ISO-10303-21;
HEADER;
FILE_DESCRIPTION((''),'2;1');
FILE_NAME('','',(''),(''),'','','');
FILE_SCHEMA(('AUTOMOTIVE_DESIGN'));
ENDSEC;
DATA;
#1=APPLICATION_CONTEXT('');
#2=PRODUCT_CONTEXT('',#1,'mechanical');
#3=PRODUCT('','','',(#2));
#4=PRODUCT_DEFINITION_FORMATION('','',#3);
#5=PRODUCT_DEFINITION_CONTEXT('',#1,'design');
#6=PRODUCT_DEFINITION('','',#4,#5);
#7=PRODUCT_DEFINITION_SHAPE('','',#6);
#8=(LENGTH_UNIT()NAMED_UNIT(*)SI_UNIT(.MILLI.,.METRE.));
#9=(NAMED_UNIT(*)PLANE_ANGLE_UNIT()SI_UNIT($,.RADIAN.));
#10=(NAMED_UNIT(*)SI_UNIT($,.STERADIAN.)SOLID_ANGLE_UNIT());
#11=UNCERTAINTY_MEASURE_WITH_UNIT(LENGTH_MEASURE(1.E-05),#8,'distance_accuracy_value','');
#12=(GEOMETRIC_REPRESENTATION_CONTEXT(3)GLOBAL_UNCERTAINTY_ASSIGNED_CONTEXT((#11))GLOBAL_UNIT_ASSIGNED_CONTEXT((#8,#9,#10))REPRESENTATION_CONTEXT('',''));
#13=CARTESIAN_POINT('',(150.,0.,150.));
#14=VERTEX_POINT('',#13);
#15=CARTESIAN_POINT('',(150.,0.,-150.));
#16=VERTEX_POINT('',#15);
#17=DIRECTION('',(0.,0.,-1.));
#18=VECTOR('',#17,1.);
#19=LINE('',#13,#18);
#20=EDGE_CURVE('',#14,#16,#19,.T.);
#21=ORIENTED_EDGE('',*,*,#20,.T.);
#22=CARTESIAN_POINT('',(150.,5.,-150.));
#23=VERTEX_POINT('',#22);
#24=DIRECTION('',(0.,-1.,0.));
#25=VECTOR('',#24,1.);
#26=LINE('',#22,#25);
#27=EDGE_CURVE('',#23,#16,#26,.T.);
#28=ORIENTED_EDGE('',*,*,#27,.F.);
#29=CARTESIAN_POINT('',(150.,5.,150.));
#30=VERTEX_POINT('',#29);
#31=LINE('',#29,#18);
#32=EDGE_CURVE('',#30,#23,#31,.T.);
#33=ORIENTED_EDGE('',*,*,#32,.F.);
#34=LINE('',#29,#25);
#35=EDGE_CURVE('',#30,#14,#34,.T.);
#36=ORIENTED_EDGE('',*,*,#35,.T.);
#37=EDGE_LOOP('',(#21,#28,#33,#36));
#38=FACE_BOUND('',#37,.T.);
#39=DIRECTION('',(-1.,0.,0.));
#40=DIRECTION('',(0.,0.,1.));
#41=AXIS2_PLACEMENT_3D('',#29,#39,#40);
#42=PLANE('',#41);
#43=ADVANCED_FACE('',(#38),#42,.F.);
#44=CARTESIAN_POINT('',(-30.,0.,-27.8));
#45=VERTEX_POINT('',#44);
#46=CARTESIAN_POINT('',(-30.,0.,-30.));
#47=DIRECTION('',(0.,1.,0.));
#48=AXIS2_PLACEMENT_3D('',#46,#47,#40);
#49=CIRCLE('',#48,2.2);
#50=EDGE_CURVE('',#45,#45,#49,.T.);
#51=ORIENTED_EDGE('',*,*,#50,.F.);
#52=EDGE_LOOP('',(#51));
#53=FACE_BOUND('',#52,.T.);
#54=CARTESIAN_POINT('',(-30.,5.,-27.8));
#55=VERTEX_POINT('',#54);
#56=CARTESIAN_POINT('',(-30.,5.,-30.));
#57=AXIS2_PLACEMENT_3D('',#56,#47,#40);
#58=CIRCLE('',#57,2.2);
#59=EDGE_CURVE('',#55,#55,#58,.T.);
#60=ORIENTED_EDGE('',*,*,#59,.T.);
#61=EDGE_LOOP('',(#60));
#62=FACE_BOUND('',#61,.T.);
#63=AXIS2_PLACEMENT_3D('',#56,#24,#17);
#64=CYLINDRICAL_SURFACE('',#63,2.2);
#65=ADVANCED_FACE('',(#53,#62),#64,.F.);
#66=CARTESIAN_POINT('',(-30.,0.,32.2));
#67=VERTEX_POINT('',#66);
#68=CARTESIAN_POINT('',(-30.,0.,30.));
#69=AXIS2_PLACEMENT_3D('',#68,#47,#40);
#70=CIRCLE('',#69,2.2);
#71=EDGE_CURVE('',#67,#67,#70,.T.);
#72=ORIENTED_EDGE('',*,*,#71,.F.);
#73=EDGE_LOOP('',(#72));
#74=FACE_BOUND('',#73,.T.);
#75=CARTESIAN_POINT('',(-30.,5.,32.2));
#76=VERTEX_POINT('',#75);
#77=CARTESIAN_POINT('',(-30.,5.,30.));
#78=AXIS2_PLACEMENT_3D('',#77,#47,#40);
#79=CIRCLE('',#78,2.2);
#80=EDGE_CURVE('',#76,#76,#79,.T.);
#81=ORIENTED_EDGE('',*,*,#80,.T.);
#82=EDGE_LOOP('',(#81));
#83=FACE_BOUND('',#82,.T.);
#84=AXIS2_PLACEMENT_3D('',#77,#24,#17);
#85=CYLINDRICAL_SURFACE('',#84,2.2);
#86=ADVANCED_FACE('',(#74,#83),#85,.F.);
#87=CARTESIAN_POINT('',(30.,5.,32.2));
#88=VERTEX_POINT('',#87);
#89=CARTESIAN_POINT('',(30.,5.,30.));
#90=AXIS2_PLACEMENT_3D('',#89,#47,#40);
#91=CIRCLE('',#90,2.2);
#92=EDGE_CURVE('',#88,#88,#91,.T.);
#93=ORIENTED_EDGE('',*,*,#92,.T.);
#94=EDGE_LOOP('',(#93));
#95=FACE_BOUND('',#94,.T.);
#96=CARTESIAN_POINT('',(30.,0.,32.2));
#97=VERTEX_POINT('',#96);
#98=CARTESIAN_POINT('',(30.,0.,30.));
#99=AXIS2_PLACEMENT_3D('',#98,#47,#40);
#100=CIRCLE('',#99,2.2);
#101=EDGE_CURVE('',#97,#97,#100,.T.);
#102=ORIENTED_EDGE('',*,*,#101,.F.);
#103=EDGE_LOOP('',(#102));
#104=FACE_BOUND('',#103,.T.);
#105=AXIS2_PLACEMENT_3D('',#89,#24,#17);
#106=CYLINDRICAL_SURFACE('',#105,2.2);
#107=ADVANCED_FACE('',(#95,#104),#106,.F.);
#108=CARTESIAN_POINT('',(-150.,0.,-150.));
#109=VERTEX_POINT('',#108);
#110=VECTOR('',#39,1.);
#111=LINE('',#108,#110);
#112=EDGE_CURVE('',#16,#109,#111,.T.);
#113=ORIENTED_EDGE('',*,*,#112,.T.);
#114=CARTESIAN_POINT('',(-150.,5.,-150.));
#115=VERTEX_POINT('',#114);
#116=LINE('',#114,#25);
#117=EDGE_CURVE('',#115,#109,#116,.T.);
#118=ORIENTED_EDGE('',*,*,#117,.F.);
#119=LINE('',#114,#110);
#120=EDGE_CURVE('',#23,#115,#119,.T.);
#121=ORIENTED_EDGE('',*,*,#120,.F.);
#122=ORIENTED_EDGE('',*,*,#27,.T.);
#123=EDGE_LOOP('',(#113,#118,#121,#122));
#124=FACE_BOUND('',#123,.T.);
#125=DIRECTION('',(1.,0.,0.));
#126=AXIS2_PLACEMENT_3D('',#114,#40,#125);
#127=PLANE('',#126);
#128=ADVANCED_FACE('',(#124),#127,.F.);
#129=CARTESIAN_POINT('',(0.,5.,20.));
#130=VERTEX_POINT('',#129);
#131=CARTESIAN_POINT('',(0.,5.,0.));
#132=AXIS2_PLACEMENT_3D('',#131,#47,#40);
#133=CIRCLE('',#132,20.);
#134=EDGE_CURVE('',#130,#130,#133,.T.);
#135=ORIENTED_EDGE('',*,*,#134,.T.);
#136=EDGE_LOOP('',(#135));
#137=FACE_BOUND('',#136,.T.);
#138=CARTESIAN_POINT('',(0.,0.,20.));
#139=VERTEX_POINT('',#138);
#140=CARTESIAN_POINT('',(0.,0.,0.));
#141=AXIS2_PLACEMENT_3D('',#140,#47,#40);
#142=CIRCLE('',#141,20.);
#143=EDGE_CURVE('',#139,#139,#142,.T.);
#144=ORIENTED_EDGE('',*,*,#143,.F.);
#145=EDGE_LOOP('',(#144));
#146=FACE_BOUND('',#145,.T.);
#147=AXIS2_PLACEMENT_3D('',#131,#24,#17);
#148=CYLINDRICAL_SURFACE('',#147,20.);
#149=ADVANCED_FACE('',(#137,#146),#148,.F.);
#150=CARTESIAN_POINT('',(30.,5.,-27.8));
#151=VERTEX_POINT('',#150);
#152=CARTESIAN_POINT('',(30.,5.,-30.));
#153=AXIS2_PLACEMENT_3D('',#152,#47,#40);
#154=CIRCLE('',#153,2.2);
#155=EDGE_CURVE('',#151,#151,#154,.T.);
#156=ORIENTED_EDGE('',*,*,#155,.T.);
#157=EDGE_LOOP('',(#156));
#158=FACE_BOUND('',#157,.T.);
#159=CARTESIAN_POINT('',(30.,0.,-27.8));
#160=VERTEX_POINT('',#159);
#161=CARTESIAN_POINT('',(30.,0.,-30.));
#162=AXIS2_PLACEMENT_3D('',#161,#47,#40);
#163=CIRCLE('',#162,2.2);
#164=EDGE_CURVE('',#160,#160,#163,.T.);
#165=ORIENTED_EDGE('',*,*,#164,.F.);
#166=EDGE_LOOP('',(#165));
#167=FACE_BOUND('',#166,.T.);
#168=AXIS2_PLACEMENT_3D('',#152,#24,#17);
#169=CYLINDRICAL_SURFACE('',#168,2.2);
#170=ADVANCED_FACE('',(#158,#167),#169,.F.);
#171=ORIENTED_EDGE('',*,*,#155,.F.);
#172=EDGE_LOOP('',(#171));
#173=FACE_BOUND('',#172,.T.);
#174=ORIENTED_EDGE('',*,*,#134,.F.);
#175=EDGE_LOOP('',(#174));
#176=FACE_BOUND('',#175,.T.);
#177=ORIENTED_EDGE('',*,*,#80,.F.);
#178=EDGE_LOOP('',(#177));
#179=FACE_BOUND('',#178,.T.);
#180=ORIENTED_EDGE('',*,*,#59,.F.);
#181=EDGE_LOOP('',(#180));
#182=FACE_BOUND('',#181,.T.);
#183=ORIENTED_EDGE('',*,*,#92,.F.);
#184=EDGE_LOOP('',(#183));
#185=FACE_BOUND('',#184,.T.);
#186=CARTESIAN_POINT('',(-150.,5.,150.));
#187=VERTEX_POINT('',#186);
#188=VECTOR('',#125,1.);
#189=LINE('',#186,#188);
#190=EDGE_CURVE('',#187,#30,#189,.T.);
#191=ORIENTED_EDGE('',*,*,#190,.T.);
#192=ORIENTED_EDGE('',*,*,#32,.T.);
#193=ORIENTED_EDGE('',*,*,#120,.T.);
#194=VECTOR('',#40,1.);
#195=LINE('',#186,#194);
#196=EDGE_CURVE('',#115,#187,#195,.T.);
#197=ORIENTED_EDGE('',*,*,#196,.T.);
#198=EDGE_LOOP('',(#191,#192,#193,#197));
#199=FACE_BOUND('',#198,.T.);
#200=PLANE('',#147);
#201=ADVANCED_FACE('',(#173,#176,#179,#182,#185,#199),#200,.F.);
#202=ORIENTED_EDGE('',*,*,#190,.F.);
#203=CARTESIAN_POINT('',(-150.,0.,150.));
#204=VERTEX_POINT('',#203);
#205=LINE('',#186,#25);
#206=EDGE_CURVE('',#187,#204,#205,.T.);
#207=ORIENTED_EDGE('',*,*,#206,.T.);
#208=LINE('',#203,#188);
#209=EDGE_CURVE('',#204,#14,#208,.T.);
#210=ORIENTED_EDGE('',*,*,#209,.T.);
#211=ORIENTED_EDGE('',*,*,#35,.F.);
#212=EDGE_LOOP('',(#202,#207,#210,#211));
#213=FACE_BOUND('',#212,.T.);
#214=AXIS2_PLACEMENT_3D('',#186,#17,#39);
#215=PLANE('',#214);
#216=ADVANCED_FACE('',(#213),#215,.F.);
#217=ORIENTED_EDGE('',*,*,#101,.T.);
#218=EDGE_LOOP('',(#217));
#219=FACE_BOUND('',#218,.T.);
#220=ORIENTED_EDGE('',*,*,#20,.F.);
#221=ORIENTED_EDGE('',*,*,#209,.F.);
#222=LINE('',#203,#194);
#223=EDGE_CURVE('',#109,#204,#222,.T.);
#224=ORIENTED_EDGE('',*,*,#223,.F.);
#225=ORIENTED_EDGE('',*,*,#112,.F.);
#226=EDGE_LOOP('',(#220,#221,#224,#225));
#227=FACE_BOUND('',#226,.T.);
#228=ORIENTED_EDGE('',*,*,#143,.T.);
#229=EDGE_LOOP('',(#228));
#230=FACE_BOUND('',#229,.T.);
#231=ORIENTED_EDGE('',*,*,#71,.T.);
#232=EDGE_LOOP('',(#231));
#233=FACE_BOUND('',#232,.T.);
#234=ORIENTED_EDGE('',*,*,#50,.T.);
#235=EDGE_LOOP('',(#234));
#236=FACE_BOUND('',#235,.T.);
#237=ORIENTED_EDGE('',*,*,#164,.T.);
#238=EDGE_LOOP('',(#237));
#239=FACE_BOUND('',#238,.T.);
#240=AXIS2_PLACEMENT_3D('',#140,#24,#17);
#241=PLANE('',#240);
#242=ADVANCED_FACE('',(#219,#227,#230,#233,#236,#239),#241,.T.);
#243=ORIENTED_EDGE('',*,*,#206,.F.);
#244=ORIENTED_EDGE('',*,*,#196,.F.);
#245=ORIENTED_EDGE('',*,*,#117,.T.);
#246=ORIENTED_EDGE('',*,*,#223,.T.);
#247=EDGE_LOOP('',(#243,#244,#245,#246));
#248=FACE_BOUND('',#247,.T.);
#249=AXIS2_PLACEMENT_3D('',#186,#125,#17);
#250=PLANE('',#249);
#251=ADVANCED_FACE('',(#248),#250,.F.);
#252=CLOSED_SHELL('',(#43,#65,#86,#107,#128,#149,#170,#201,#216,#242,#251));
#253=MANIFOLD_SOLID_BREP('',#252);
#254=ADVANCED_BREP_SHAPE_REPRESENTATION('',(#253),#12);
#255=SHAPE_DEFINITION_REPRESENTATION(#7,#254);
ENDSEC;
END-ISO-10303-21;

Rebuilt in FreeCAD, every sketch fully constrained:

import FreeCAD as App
import Part
import Sketcher
Q = App.Units.Quantity


def add_polygon(sketch, points):
    """Adds a closed chain of lines whose ends are joined by coincident constraints."""
    first, n = sketch.GeometryCount, len(points)
    for a, b in zip(points, points[1:] + points[:1]):
        sketch.addGeometry(Part.LineSegment(App.Vector(*a, 0), App.Vector(*b, 0)), False)
    for i in range(n):
        sketch.addConstraint(Sketcher.Constraint("Coincident", first + i, 2, first + (i + 1) % n, 1))

doc = App.newDocument("Part")
body = doc.addObject("PartDesign::Body", "Body")

# Sketch on XZ plane
sketch1 = body.newObject("Sketcher::SketchObject", "Sketch")
sketch1.AttachmentSupport = (doc.getObject("XZ_Plane"), [""])
sketch1.MapMode = "FlatFace"
add_polygon(sketch1, [(-150, -150), (-150, 150), (150, 150), (150, -150)])  # lines 0-3
sketch1.addGeometry(Part.Circle(App.Vector(-30, 30, 0), App.Vector(0, 0, 1), 2.2), False)  # 4
sketch1.addGeometry(Part.Circle(App.Vector(30, 30, 0), App.Vector(0, 0, 1), 2.2), False)  # 5
sketch1.addGeometry(Part.Circle(App.Vector(-30, -30, 0), App.Vector(0, 0, 1), 2.2), False)  # 6
sketch1.addGeometry(Part.Circle(App.Vector(0, 0, 0), App.Vector(0, 0, 1), 20), False)  # 7
sketch1.addGeometry(Part.Circle(App.Vector(30, -30, 0), App.Vector(0, 0, 1), 2.2), False)  # 8
sketch1.addConstraint(Sketcher.Constraint("Vertical", 0))
sketch1.addConstraint(Sketcher.Constraint("Horizontal", 1))
sketch1.addConstraint(Sketcher.Constraint("Vertical", 2))
sketch1.addConstraint(Sketcher.Constraint("Horizontal", 3))
sketch1.addConstraint(Sketcher.Constraint("Coincident", 7, 3, -1, 1))
sketch1.addConstraint(Sketcher.Constraint("Equal", 4, 5))
sketch1.addConstraint(Sketcher.Constraint("Equal", 5, 6))
sketch1.addConstraint(Sketcher.Constraint("Equal", 6, 8))
sketch1.addConstraint(Sketcher.Constraint("Symmetric", 5, 3, 6, 3, -1, 1))
sketch1.addConstraint(Sketcher.Constraint("Symmetric", 4, 3, 8, 3, -1, 1))
sketch1.addConstraint(Sketcher.Constraint("Symmetric", 0, 2, 2, 2, -1, 1))
sketch1.addConstraint(Sketcher.Constraint("Symmetric", 4, 3, 5, 3, -2))
sketch1.addConstraint(Sketcher.Constraint("Equal", 3, 0))
sketch1.addConstraint(Sketcher.Constraint("Diameter", 7, Q("40 mm")))
sketch1.addConstraint(Sketcher.Constraint("Diameter", 4, Q("4.4 mm")))
sketch1.addConstraint(Sketcher.Constraint("DistanceX", 1, 1, 1, 2, Q("300 mm")))
sketch1.addConstraint(Sketcher.Constraint("DistanceX", 4, 3, -1, 1, Q("30 mm")))
sketch1.addConstraint(Sketcher.Constraint("DistanceY", -1, 1, 4, 3, Q("30 mm")))
pad1 = body.newObject("PartDesign::Pad", "Pad")
pad1.Profile = sketch1
pad1.Length = 5
pad1.Reversed = True

doc.recompute()
